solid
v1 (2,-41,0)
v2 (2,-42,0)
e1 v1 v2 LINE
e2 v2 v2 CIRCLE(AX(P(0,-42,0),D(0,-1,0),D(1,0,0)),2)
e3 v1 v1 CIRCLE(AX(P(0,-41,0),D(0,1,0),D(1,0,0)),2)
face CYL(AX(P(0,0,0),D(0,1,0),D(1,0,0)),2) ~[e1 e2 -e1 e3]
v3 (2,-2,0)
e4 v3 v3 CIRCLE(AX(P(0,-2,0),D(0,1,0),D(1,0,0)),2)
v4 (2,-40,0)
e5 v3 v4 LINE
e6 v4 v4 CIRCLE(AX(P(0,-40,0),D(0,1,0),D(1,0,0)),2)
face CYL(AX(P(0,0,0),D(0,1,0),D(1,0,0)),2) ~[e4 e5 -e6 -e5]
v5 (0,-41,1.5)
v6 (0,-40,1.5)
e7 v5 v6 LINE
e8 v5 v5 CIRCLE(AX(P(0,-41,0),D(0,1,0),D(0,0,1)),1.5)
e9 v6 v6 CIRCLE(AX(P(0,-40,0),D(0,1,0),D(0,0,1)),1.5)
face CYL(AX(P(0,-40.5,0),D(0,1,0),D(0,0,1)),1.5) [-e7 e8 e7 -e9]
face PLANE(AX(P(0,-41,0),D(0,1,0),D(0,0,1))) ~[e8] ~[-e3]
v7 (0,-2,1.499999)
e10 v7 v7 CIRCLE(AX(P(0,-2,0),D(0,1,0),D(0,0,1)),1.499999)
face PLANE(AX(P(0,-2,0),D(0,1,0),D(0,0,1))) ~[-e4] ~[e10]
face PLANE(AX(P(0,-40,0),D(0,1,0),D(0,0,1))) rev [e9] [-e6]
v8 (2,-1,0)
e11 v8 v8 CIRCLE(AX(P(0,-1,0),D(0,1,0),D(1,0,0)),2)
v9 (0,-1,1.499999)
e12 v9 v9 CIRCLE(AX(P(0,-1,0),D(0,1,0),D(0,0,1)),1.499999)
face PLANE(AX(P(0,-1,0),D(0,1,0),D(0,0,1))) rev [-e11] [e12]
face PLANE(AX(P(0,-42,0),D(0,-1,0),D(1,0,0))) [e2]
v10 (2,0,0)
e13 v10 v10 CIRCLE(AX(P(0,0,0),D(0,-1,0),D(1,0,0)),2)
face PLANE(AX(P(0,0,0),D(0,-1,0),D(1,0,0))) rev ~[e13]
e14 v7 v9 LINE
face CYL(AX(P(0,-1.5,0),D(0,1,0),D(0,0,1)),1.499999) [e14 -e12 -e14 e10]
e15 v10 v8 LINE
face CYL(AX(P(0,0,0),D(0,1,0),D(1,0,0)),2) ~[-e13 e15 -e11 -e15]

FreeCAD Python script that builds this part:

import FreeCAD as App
import Part
import Sketcher
from FreeCAD import Vector


def add_polygon(sketch, points):
    """Adds a closed chain of lines whose ends are joined by coincident constraints."""
    first, n = sketch.GeometryCount, len(points)
    for a, b in zip(points, points[1:] + points[:1]):
        sketch.addGeometry(Part.LineSegment(App.Vector(*a, 0), App.Vector(*b, 0)), False)
    for i in range(n):
        sketch.addConstraint(Sketcher.Constraint("Coincident", first + i, 2, first + (i + 1) % n, 1))

doc = App.newDocument("Part")
body = doc.addObject("PartDesign::Body", "Body")

# Sketch on XZ plane
sketch1 = body.newObject("Sketcher::SketchObject", "Sketch")
sketch1.AttachmentSupport = (doc.getObject("XZ_Plane"), [""])
sketch1.MapMode = "FlatFace"
sketch1.addGeometry(Part.Circle(Vector(0, 0, 0), Vector(0, 0, 1), 2), False)
sketch1.addConstraint([
    Sketcher.Constraint("Coincident", 0, 3, -1, 1),
    Sketcher.Constraint("Diameter", 0, 4.0),
])
pad1 = body.newObject("PartDesign::Pad", "Pad")
pad1.Profile = sketch1
pad1.Length = 42

# Sketch on YZ plane
sketch2 = body.newObject("Sketcher::SketchObject", "Sketch001")
sketch2.AttachmentSupport = (doc.getObject("YZ_Plane"), [""])
sketch2.MapMode = "FlatFace"
add_polygon(sketch2, [(-41, 6.027544), (-41, 1.5), (-40, 1.5), (-40, 6.027544)])  # lines 0-3
add_polygon(sketch2, [(-2, 7.116845), (-2, 1.499999), (-1, 1.499999), (-1, 7.116845)])  # lines 4-7
sketch2.addConstraint([
    Sketcher.Constraint("Vertical", 0),
    Sketcher.Constraint("Horizontal", 1),
    Sketcher.Constraint("Vertical", 2),
    Sketcher.Constraint("Horizontal", 3),
    Sketcher.Constraint("Vertical", 4),
    Sketcher.Constraint("Horizontal", 5),
    Sketcher.Constraint("Vertical", 6),
    Sketcher.Constraint("Horizontal", 7),
    Sketcher.Constraint("Horizontal", 1, 2, 4, 2),
    Sketcher.Constraint("Equal", 3, 5),
    Sketcher.Constraint("DistanceX", 1, 1, 1, 2, 1.0),
    Sketcher.Constraint("DistanceX", 0, 2, -1, 1, 41.0),
    Sketcher.Constraint("DistanceX", 4, 2, -1, 1, 2.0),
    Sketcher.Constraint("DistanceY", -1, 1, 0, 2, 1.5),
    Sketcher.Constraint("DistanceY", 2, 2, 6, 2, 1.089301),
    Sketcher.Constraint("DistanceY", 0, 2, 0, 1, 4.527544),
])
groove = body.newObject("PartDesign::Groove", "Groove")
groove.Profile = sketch2
groove.ReferenceAxis = (sketch2, ["H_Axis"])
groove.Angle = 360

doc.recompute()
